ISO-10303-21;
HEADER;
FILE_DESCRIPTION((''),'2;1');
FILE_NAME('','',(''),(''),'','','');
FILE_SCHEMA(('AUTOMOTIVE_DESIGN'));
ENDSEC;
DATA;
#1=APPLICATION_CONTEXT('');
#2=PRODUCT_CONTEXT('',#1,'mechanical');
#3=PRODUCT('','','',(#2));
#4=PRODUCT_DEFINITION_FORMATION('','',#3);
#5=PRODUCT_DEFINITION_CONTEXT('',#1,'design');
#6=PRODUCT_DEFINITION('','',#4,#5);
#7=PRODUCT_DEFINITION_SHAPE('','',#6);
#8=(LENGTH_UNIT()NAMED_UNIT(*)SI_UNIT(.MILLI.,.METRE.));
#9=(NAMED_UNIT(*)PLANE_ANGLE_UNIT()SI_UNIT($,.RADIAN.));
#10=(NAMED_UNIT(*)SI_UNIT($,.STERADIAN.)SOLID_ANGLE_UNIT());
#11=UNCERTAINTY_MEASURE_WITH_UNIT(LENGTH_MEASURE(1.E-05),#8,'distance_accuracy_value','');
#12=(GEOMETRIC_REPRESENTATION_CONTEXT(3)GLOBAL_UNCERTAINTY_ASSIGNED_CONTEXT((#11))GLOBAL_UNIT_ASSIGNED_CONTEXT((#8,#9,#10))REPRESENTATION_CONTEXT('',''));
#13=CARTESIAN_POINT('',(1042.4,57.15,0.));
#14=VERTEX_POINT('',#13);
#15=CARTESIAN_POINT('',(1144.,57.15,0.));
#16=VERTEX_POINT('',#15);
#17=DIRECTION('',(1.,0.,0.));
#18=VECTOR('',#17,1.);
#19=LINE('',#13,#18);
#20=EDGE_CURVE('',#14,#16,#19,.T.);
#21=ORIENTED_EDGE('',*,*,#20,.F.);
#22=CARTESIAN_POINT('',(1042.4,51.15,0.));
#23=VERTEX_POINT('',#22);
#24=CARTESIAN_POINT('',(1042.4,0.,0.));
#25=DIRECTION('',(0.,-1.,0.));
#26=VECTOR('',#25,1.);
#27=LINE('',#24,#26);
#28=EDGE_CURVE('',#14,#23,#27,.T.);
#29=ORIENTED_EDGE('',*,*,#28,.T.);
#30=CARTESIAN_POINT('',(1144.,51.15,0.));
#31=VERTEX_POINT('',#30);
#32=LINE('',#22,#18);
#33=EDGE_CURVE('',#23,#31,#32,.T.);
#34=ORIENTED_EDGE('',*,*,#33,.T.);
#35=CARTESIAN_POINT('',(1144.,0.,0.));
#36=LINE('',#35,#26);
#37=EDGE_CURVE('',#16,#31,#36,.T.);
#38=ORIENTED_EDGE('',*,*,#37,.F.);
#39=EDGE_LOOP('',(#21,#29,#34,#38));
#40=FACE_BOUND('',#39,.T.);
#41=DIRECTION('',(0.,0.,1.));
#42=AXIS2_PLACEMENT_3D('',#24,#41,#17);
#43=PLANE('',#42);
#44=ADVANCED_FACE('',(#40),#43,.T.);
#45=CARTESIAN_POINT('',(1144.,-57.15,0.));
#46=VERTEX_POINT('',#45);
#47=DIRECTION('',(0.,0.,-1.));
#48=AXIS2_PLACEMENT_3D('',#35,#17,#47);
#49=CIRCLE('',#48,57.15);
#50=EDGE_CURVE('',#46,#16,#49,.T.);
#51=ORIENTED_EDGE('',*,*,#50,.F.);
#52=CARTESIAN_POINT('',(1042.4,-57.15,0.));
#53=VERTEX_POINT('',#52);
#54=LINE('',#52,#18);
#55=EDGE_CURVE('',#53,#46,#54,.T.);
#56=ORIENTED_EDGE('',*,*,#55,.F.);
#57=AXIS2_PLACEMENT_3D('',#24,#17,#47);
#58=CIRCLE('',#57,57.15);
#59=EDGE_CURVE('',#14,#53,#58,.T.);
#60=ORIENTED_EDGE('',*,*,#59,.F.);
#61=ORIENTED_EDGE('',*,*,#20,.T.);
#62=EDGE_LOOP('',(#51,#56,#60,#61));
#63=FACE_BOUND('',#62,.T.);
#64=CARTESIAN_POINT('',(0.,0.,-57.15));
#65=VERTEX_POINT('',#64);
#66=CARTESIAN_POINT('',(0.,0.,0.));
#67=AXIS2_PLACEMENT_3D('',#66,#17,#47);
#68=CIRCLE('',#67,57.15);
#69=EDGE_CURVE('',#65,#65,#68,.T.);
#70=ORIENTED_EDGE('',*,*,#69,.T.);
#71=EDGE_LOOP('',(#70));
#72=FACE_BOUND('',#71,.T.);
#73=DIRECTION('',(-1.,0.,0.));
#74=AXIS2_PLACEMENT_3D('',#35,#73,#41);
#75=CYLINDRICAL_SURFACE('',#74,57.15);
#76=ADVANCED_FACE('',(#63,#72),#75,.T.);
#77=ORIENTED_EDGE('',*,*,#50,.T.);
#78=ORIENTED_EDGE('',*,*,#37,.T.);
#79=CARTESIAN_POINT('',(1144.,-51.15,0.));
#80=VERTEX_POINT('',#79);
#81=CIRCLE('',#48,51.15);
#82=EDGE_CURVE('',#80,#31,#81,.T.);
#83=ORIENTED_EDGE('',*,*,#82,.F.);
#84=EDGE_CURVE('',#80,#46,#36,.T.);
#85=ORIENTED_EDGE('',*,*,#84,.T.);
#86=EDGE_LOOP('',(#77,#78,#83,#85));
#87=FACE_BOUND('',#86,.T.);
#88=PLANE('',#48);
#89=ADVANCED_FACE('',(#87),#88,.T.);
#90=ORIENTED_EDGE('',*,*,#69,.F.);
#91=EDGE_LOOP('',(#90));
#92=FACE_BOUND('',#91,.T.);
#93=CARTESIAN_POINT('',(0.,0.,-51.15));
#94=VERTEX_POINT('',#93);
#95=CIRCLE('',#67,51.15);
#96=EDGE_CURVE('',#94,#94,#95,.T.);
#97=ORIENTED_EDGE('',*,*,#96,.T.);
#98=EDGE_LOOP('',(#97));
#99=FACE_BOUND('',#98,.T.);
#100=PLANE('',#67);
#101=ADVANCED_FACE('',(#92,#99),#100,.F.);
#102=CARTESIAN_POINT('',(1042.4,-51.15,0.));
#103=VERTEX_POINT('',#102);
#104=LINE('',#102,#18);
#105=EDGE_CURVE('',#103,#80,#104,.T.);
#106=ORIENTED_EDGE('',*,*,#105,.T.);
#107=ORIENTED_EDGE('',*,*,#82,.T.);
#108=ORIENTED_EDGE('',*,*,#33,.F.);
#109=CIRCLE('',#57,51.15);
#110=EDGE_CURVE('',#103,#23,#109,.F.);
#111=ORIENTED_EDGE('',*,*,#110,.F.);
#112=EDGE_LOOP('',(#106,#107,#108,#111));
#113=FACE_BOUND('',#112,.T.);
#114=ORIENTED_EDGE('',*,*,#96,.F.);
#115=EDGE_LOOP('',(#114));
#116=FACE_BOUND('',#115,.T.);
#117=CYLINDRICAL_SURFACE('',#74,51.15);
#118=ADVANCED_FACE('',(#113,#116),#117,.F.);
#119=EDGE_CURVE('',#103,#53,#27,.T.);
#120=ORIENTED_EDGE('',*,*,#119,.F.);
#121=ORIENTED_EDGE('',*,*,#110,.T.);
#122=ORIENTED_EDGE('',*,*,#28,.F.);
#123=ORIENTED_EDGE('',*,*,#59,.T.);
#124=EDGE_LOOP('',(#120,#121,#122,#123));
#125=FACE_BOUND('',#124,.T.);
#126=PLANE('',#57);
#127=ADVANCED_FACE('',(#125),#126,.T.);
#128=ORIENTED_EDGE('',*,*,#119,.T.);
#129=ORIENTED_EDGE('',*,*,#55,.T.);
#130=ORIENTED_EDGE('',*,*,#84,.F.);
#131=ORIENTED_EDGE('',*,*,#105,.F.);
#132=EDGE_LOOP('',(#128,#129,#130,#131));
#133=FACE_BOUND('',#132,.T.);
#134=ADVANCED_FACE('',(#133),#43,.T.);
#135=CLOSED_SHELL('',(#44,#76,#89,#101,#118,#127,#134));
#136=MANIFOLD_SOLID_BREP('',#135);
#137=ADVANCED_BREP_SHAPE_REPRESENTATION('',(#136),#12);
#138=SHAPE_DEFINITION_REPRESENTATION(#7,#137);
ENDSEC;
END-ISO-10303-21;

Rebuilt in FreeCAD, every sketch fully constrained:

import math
import FreeCAD as App
import Part
import Sketcher
Q = App.Units.Quantity

doc = App.newDocument("Part")
params = doc.addObject("Spreadsheet::Sheet", "Params")
for row, (alias, value) in enumerate([
    ("sketch1_diameter", "114.3 mm"),
    ("sketch1_diameter2", "102.3 mm"),
    ("pad1_length", "1144 mm"),
    ("sketch2_radius", "57.15 mm"),
    ("pocket1_length", "101.6 mm"),
], start=1):
    params.set(f"A{row}", alias)
    params.set(f"B{row}", "=" + value)
    params.setAlias(f"B{row}", alias)

body = doc.addObject("PartDesign::Body", "Body")

# Sketch on YZ plane
sketch1 = body.newObject("Sketcher::SketchObject", "Sketch")
sketch1.AttachmentSupport = (doc.getObject("YZ_Plane"), [""])
sketch1.MapMode = "FlatFace"
sketch1.addGeometry([
    Part.Circle(App.Vector(0, 0, 0), App.Vector(0, 0, 1), 57.15),
    Part.Circle(App.Vector(0, 0, 0), App.Vector(0, 0, 1), 51.15),
], False)
sketch1.addConstraint([
    Sketcher.Constraint("Coincident", 0, 3, -1, 1),
    Sketcher.Constraint("Coincident", 1, 3, -1, 1),
    Sketcher.Constraint("Diameter", 0, Q("114.3 mm")),
    Sketcher.Constraint("Diameter", 1, Q("102.3 mm")),
])
sketch1.setExpression("Constraints[2]", "Params.sketch1_diameter")
sketch1.setExpression("Constraints[3]", "Params.sketch1_diameter2")
pad1 = body.newObject("PartDesign::Pad", "Pad")
pad1.Profile = sketch1
pad1.setExpression("Length", "Params.pad1_length")

# Sketch on YZ plane
sketch2 = body.newObject("Sketcher::SketchObject", "Sketch001")
sketch2.AttachmentSupport = (doc.getObject("YZ_Plane"), [""])
sketch2.MapMode = "FlatFace"
sketch2.AttachmentOffset = App.Placement(App.Vector(0, 0, 1042.4), App.Rotation())
sketch2.addGeometry([
    Part.LineSegment(App.Vector(-57.15, 0, 0), App.Vector(57.15, 0, 0)),
    Part.ArcOfCircle(Part.Circle(App.Vector(0, 0, 0), App.Vector(0, 0, 1), 57.15), math.radians(0), math.radians(180)),
], False)
sketch2.addConstraint([
    Sketcher.Constraint("Coincident", 0, 1, 1, 2),
    Sketcher.Constraint("Coincident", 1, 1, 0, 2),
    Sketcher.Constraint("Horizontal", 0),
    Sketcher.Constraint("Coincident", 1, 3, -1, 1),
    Sketcher.Constraint("PointOnObject", 0, 1, -1),
    Sketcher.Constraint("Radius", 1, Q("57.15 mm")),
])
sketch2.setExpression("Constraints[5]", "Params.sketch2_radius")
pocket1 = body.newObject("PartDesign::Pocket", "Pocket")
pocket1.Profile = sketch2
pocket1.setExpression("Length", "Params.pocket1_length")
pocket1.Reversed = True

doc.recompute()
